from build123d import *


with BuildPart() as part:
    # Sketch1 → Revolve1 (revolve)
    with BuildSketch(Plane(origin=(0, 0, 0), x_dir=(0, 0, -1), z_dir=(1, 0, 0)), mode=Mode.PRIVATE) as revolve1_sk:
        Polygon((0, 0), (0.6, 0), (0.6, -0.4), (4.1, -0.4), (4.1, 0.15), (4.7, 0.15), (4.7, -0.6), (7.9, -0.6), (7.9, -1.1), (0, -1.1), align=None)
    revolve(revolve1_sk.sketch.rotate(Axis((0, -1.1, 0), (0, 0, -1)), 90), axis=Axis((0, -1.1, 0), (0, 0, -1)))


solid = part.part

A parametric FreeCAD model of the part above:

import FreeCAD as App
import Part
import Sketcher

doc = App.newDocument("Part")
body = doc.addObject("PartDesign::Body", "Body")

# Sketch on YZ plane
sketch1 = body.newObject("Sketcher::SketchObject", "Sketch")
sketch1.AttachmentSupport = (doc.getObject("YZ_Plane"), [""])
sketch1.MapMode = "FlatFace"
sketch1.addGeometry([
    Part.LineSegment(App.Vector(0, -0.6, 0), App.Vector(0, 0, 0)),  # 0
    Part.LineSegment(App.Vector(0, 0, 0), App.Vector(-1.1, 0, 0)),  # 1
    Part.LineSegment(App.Vector(-1.1, 0, 0), App.Vector(-1.1, -7.9, 0)),  # 2
    Part.LineSegment(App.Vector(-1.1, -7.9, 0), App.Vector(-0.6, -7.9, 0)),  # 3
    Part.LineSegment(App.Vector(-0.6, -7.9, 0), App.Vector(-0.6, -4.7, 0)),  # 4
    Part.LineSegment(App.Vector(-0.6, -4.7, 0), App.Vector(0.15, -4.7, 0)),  # 5
    Part.LineSegment(App.Vector(0.15, -4.7, 0), App.Vector(0.15, -4.1, 0)),  # 6
    Part.LineSegment(App.Vector(0.15, -4.1, 0), App.Vector(-0.4, -4.1, 0)),  # 7
    Part.LineSegment(App.Vector(-0.4, -4.1, 0), App.Vector(-0.4, -0.6, 0)),  # 8
    Part.LineSegment(App.Vector(-0.4, -0.6, 0), App.Vector(0, -0.6, 0)),  # 9
], False)
sketch1.addGeometry(Part.LineSegment(App.Vector(-1.1, 0, 0), App.Vector(-1.1, -7.9, 0)), True)  # axis
sketch1.addConstraint([
    Sketcher.Constraint("Coincident", 0, 2, 1, 1),
    Sketcher.Constraint("Coincident", 1, 2, 2, 1),
    Sketcher.Constraint("Coincident", 2, 2, 3, 1),
    Sketcher.Constraint("Coincident", 3, 2, 4, 1),
    Sketcher.Constraint("Coincident", 4, 2, 5, 1),
    Sketcher.Constraint("Coincident", 5, 2, 6, 1),
    Sketcher.Constraint("Coincident", 6, 2, 7, 1),
    Sketcher.Constraint("Coincident", 7, 2, 8, 1),
    Sketcher.Constraint("Coincident", 8, 2, 9, 1),
    Sketcher.Constraint("Coincident", 9, 2, 0, 1),
    Sketcher.Constraint("Vertical", 0),
    Sketcher.Constraint("Horizontal", 1),
    Sketcher.Constraint("Vertical", 2),
    Sketcher.Constraint("Horizontal", 3),
    Sketcher.Constraint("Vertical", 4),
    Sketcher.Constraint("Horizontal", 5),
    Sketcher.Constraint("Vertical", 6),
    Sketcher.Constraint("Horizontal", 7),
    Sketcher.Constraint("Vertical", 8),
    Sketcher.Constraint("Horizontal", 9),
    Sketcher.Constraint("Vertical", 10),
    Sketcher.Constraint("Coincident", 0, 2, -1, 1),
    Sketcher.Constraint("Coincident", 10, 1, 1, 2),
    Sketcher.Constraint("Horizontal", 3, 2, 10, 2),
    Sketcher.Constraint("Equal", 0, 6),
    Sketcher.Constraint("DistanceX", 1, 2, 1, 1, 1.1),
    Sketcher.Constraint("DistanceX", 3, 1, 3, 2, 0.5),
    Sketcher.Constraint("DistanceX", 9, 1, 9, 2, 0.4),
    Sketcher.Constraint("DistanceY", 0, 1, 0, 2, 0.6),
    Sketcher.Constraint("DistanceY", 2, 2, 2, 1, 7.9),
    Sketcher.Constraint("DistanceY", 4, 1, 4, 2, 3.2),
    Sketcher.Constraint("DistanceX", 5, 1, 5, 2, 0.75),
])
revolution = body.newObject("PartDesign::Revolution", "Revolution")
revolution.Profile = sketch1
revolution.ReferenceAxis = (sketch1, ["Axis0"])
revolution.Angle = 360

doc.recompute()
